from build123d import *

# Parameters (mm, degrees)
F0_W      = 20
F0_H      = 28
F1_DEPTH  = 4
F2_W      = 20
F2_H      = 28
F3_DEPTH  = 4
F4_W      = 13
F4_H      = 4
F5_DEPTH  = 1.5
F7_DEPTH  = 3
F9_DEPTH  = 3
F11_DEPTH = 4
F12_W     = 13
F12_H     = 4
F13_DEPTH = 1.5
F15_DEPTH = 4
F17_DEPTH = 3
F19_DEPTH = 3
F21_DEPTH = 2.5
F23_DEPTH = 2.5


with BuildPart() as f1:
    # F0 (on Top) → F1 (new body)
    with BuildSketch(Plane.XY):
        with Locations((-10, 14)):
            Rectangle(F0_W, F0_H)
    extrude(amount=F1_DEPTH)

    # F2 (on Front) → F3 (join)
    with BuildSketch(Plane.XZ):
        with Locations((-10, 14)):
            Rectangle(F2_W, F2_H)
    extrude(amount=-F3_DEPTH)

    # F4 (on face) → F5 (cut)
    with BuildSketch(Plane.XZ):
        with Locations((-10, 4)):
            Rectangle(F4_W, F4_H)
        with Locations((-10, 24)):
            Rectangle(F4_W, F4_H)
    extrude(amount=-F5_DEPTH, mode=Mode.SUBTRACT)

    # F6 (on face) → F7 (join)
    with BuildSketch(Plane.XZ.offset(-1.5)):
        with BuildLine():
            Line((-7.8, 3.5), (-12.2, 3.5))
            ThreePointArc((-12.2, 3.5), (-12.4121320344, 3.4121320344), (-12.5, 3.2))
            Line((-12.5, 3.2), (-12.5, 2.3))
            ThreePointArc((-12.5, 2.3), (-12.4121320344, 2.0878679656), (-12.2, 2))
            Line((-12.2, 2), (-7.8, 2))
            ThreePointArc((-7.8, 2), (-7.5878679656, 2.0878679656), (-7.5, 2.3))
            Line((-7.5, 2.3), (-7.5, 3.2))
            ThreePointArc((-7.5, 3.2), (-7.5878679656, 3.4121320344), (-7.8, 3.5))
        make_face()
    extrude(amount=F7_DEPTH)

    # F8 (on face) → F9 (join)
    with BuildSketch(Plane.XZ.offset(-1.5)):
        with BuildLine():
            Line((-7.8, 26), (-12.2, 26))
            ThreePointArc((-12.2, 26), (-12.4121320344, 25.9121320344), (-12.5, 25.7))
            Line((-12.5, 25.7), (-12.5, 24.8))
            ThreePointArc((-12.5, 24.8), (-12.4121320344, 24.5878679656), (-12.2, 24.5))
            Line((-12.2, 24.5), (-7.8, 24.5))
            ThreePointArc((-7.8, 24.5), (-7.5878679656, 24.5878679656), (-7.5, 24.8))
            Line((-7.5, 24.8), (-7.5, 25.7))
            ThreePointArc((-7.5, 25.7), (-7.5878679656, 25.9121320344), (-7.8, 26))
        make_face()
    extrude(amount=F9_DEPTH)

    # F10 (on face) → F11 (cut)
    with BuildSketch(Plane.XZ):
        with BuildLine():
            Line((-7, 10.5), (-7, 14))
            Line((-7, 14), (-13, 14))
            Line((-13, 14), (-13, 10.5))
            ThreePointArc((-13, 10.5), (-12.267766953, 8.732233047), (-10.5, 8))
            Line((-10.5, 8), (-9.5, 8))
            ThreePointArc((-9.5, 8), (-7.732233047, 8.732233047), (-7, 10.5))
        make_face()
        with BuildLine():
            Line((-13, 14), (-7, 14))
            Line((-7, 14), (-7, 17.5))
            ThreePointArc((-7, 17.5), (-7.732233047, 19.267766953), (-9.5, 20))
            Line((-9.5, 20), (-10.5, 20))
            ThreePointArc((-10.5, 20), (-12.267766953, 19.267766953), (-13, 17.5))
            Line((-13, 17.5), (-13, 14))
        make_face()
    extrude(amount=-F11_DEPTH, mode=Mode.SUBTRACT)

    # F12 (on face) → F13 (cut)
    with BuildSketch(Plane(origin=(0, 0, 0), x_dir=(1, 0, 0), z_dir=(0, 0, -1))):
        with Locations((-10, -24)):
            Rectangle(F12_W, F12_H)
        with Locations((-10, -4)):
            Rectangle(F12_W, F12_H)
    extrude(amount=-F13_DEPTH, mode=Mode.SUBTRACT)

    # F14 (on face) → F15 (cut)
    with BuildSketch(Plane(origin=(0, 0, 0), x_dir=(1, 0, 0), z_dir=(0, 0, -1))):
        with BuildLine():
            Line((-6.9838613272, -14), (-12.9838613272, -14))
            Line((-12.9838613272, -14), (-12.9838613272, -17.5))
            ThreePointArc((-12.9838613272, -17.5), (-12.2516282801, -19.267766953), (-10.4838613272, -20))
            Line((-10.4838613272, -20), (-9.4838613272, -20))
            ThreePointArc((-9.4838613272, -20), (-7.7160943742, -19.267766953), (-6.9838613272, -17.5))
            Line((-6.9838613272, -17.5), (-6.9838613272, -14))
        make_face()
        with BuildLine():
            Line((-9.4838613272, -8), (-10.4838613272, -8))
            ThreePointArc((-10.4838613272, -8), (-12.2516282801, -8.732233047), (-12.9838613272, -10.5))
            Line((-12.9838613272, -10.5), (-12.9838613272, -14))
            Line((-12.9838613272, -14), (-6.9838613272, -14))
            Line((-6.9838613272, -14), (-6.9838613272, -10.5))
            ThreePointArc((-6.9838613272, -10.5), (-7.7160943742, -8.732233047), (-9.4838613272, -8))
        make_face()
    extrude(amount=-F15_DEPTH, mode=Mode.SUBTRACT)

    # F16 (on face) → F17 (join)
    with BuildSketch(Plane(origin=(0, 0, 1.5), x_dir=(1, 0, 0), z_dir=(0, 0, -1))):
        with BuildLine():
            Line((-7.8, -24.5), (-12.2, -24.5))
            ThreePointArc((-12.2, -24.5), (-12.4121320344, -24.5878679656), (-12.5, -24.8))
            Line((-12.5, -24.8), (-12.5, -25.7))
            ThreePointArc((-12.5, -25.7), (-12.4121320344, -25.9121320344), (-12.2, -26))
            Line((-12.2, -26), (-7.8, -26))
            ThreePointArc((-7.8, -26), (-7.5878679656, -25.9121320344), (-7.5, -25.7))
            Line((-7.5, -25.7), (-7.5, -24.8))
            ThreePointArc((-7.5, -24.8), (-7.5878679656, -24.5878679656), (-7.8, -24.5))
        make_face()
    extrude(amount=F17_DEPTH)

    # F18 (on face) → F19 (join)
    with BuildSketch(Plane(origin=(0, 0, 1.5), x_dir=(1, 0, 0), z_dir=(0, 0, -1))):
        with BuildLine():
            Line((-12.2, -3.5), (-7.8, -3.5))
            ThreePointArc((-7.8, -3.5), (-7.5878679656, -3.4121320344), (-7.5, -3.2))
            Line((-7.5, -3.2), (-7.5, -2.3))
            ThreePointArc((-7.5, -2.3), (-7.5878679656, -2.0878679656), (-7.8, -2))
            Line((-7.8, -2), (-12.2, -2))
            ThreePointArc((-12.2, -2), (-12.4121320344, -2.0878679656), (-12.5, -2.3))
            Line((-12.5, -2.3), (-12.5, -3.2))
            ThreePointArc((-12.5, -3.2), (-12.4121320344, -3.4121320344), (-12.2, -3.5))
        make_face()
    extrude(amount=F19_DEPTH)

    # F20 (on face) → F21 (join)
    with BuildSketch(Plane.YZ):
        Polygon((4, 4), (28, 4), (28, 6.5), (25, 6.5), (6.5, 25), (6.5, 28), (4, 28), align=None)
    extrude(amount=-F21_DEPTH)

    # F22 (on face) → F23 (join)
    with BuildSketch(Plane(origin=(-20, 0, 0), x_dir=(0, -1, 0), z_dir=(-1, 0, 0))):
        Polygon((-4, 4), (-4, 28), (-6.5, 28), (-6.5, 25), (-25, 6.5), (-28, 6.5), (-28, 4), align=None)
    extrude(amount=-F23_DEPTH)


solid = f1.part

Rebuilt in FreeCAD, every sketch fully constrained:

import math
import FreeCAD as App
import Part
import Sketcher

V = App.Vector
Q = App.Units.Quantity


def add_polygon(sketch, points):
    """Adds a closed chain of lines whose ends are joined by coincident constraints."""
    first, n = sketch.GeometryCount, len(points)
    for a, b in zip(points, points[1:] + points[:1]):
        sketch.addGeometry(Part.LineSegment(App.Vector(*a, 0), App.Vector(*b, 0)), False)
    for i in range(n):
        sketch.addConstraint(Sketcher.Constraint("Coincident", first + i, 2, first + (i + 1) % n, 1))

doc = App.newDocument("Part")
body = doc.addObject("PartDesign::Body", "Body")

sketch1 = doc.addObject("Sketcher::SketchObject", "Sketch")
body.addObject(sketch1)
sketch1.AttachmentSupport = (doc.XY_Plane, [""])
sketch1.MapMode = "FlatFace"
add_polygon(sketch1, [(-20, 28), (-20, 0), (0, 0), (0, 28)])
sketch1.addConstraint([
    Sketcher.Constraint("Vertical", 0),
    Sketcher.Constraint("Horizontal", 1),
    Sketcher.Constraint("Vertical", 2),
    Sketcher.Constraint("Horizontal", 3),
    Sketcher.Constraint("Coincident", 1, 2, -1, 1),
    Sketcher.Constraint("DistanceX", 1, 1, 1, 2, Q("20 mm")),
    Sketcher.Constraint("DistanceY", 0, 2, 0, 1, Q("28 mm")),
])
pad1 = doc.addObject("PartDesign::Pad", "Pad")
body.addObject(pad1)
pad1.Profile = sketch1
pad1.Length = 4

sketch2 = doc.addObject("Sketcher::SketchObject", "Sketch001")
body.addObject(sketch2)
sketch2.AttachmentSupport = (doc.XZ_Plane, [""])
sketch2.MapMode = "FlatFace"
add_polygon(sketch2, [(-20, 28), (-20, 0), (0, 0), (0, 28)])
sketch2.addConstraint([
    Sketcher.Constraint("Vertical", 0),
    Sketcher.Constraint("Horizontal", 1),
    Sketcher.Constraint("Vertical", 2),
    Sketcher.Constraint("Horizontal", 3),
    Sketcher.Constraint("Coincident", 1, 2, -1, 1),
    Sketcher.Constraint("DistanceX", 1, 1, 1, 2, Q("20 mm")),
    Sketcher.Constraint("DistanceY", 0, 2, 0, 1, Q("28 mm")),
])
pad2 = doc.addObject("PartDesign::Pad", "Pad001")
body.addObject(pad2)
pad2.Profile = sketch2
pad2.Length = 4
pad2.Reversed = True

sketch3 = doc.addObject("Sketcher::SketchObject", "Sketch002")
body.addObject(sketch3)
sketch3.AttachmentSupport = (doc.XZ_Plane, [""])
sketch3.MapMode = "FlatFace"
add_polygon(sketch3, [(-16.5, 6), (-16.5, 2), (-3.5, 2), (-3.5, 6)])
add_polygon(sketch3, [(-16.5, 26), (-16.5, 22), (-3.5, 22), (-3.5, 26)])
sketch3.addConstraint([
    Sketcher.Constraint("Vertical", 0),
    Sketcher.Constraint("Horizontal", 1),
    Sketcher.Constraint("Vertical", 2),
    Sketcher.Constraint("Horizontal", 3),
    Sketcher.Constraint("Vertical", 4),
    Sketcher.Constraint("Horizontal", 5),
    Sketcher.Constraint("Vertical", 6),
    Sketcher.Constraint("Horizontal", 7),
    Sketcher.Constraint("Vertical", 3, 2, 4, 2),
    Sketcher.Constraint("Vertical", 2, 2, 5, 2),
    Sketcher.Constraint("Equal", 2, 4),
    Sketcher.Constraint("DistanceX", 1, 1, 1, 2, Q("13 mm")),
    Sketcher.Constraint("DistanceY", 0, 2, 0, 1, Q("4 mm")),
    Sketcher.Constraint("DistanceY", -1, 1, 0, 2, Q("2 mm")),
    Sketcher.Constraint("DistanceY", -1, 1, 4, 2, Q("22 mm")),
    Sketcher.Constraint("DistanceX", 0, 2, -1, 1, Q("16.5 mm")),
])
pocket1 = doc.addObject("PartDesign::Pocket", "Pocket")
body.addObject(pocket1)
pocket1.Profile = sketch3
pocket1.Length = 1.5

sketch4 = doc.addObject("Sketcher::SketchObject", "Sketch003")
body.addObject(sketch4)
sketch4.AttachmentSupport = (doc.XZ_Plane, [""])
sketch4.MapMode = "FlatFace"
sketch4.AttachmentOffset = App.Placement(V(0, 0, -1.5), App.Rotation())
sketch4.addGeometry([
    Part.LineSegment(V(-7.8, 3.5, 0), V(-12.2, 3.5, 0)),
    Part.ArcOfCircle(Part.Circle(V(-12.2, 3.2, 0), V(0, 0, 1), 0.3), math.radians(90), math.radians(180)),
    Part.LineSegment(V(-12.5, 3.2, 0), V(-12.5, 2.3, 0)),
    Part.ArcOfCircle(Part.Circle(V(-12.2, 2.3, 0), V(0, 0, 1), 0.3), math.radians(180), math.radians(270)),
    Part.LineSegment(V(-12.2, 2, 0), V(-7.8, 2, 0)),
    Part.ArcOfCircle(Part.Circle(V(-7.8, 2.3, 0), V(0, 0, 1), 0.3), math.radians(-90), math.radians(0)),
    Part.LineSegment(V(-7.5, 2.3, 0), V(-7.5, 3.2, 0)),
    Part.ArcOfCircle(Part.Circle(V(-7.8, 3.2, 0), V(0, 0, 1), 0.3), math.radians(0), math.radians(90)),
], False)
sketch4.addConstraint([
    Sketcher.Constraint("Tangent", 0, 2, 1, 1),
    Sketcher.Constraint("Tangent", 1, 2, 2, 1),
    Sketcher.Constraint("Tangent", 2, 2, 3, 1),
    Sketcher.Constraint("Tangent", 3, 2, 4, 1),
    Sketcher.Constraint("Tangent", 4, 2, 5, 1),
    Sketcher.Constraint("Tangent", 5, 2, 6, 1),
    Sketcher.Constraint("Tangent", 6, 2, 7, 1),
    Sketcher.Constraint("Tangent", 7, 2, 0, 1),
    Sketcher.Constraint("Horizontal", 0),
    Sketcher.Constraint("Vertical", 2),
    Sketcher.Constraint("Horizontal", 4),
    Sketcher.Constraint("Vertical", 6),
    Sketcher.Constraint("Equal", 1, 3),
    Sketcher.Constraint("Equal", 3, 5),
    Sketcher.Constraint("Equal", 5, 7),
    Sketcher.Constraint("Radius", 1, Q("0.3 mm")),
    Sketcher.Constraint("DistanceX", 0, 2, 0, 1, Q("4.4 mm")),
    Sketcher.Constraint("DistanceY", 2, 2, 2, 1, Q("0.9 mm")),
    Sketcher.Constraint("DistanceY", -1, 1, 3, 2, Q("2 mm")),
    Sketcher.Constraint("DistanceX", 1, 3, -1, 1, Q("12.2 mm")),
])
pad3 = doc.addObject("PartDesign::Pad", "Pad002")
body.addObject(pad3)
pad3.Profile = sketch4
pad3.Length = 3

sketch5 = doc.addObject("Sketcher::SketchObject", "Sketch004")
body.addObject(sketch5)
sketch5.AttachmentSupport = (doc.XZ_Plane, [""])
sketch5.MapMode = "FlatFace"
sketch5.AttachmentOffset = App.Placement(V(0, 0, -1.5), App.Rotation())
sketch5.addGeometry([
    Part.LineSegment(V(-7.8, 26, 0), V(-12.2, 26, 0)),
    Part.ArcOfCircle(Part.Circle(V(-12.2, 25.7, 0), V(0, 0, 1), 0.3), math.radians(90), math.radians(180)),
    Part.LineSegment(V(-12.5, 25.7, 0), V(-12.5, 24.8, 0)),
    Part.ArcOfCircle(Part.Circle(V(-12.2, 24.8, 0), V(0, 0, 1), 0.3), math.radians(180), math.radians(270)),
    Part.LineSegment(V(-12.2, 24.5, 0), V(-7.8, 24.5, 0)),
    Part.ArcOfCircle(Part.Circle(V(-7.8, 24.8, 0), V(0, 0, 1), 0.3), math.radians(-90), math.radians(0)),
    Part.LineSegment(V(-7.5, 24.8, 0), V(-7.5, 25.7, 0)),
    Part.ArcOfCircle(Part.Circle(V(-7.8, 25.7, 0), V(0, 0, 1), 0.3), math.radians(0), math.radians(90)),
], False)
sketch5.addConstraint([
    Sketcher.Constraint("Tangent", 0, 2, 1, 1),
    Sketcher.Constraint("Tangent", 1, 2, 2, 1),
    Sketcher.Constraint("Tangent", 2, 2, 3, 1),
    Sketcher.Constraint("Tangent", 3, 2, 4, 1),
    Sketcher.Constraint("Tangent", 4, 2, 5, 1),
    Sketcher.Constraint("Tangent", 5, 2, 6, 1),
    Sketcher.Constraint("Tangent", 6, 2, 7, 1),
    Sketcher.Constraint("Tangent", 7, 2, 0, 1),
    Sketcher.Constraint("Horizontal", 0),
    Sketcher.Constraint("Vertical", 2),
    Sketcher.Constraint("Horizontal", 4),
    Sketcher.Constraint("Vertical", 6),
    Sketcher.Constraint("Equal", 1, 3),
    Sketcher.Constraint("Equal", 3, 5),
    Sketcher.Constraint("Equal", 5, 7),
    Sketcher.Constraint("Radius", 1, Q("0.3 mm")),
    Sketcher.Constraint("DistanceX", 0, 2, 0, 1, Q("4.4 mm")),
    Sketcher.Constraint("DistanceY", 2, 2, 2, 1, Q("0.9 mm")),
    Sketcher.Constraint("DistanceY", -1, 1, 0, 2, Q("26 mm")),
    Sketcher.Constraint("DistanceX", 1, 3, -1, 1, Q("12.2 mm")),
])
pad4 = doc.addObject("PartDesign::Pad", "Pad003")
body.addObject(pad4)
pad4.Profile = sketch5
pad4.Length = 3

sketch6 = doc.addObject("Sketcher::SketchObject", "Sketch005")
body.addObject(sketch6)
sketch6.AttachmentSupport = (doc.XZ_Plane, [""])
sketch6.MapMode = "FlatFace"
sketch6.addGeometry([
    Part.LineSegment(V(-7, 10.5, 0), V(-7, 17.5, 0)),
    Part.ArcOfCircle(Part.Circle(V(-9.5, 17.5, 0), V(0, 0, 1), 2.5), math.radians(0), math.radians(90)),
    Part.LineSegment(V(-9.5, 20, 0), V(-10.5, 20, 0)),
    Part.ArcOfCircle(Part.Circle(V(-10.5, 17.5, 0), V(0, 0, 1), 2.5), math.radians(90), math.radians(180)),
    Part.LineSegment(V(-13, 17.5, 0), V(-13, 10.5, 0)),
    Part.ArcOfCircle(Part.Circle(V(-10.5, 10.5, 0), V(0, 0, 1), 2.5), math.radians(180), math.radians(270)),
    Part.LineSegment(V(-10.5, 8, 0), V(-9.5, 8, 0)),
    Part.ArcOfCircle(Part.Circle(V(-9.5, 10.5, 0), V(0, 0, 1), 2.5), math.radians(-90), math.radians(0)),
], False)
sketch6.addConstraint([
    Sketcher.Constraint("Tangent", 0, 2, 1, 1),
    Sketcher.Constraint("Tangent", 1, 2, 2, 1),
    Sketcher.Constraint("Tangent", 2, 2, 3, 1),
    Sketcher.Constraint("Tangent", 3, 2, 4, 1),
    Sketcher.Constraint("Tangent", 4, 2, 5, 1),
    Sketcher.Constraint("Tangent", 5, 2, 6, 1),
    Sketcher.Constraint("Tangent", 6, 2, 7, 1),
    Sketcher.Constraint("Tangent", 7, 2, 0, 1),
    Sketcher.Constraint("Vertical", 0),
    Sketcher.Constraint("Horizontal", 2),
    Sketcher.Constraint("Vertical", 4),
    Sketcher.Constraint("Horizontal", 6),
    Sketcher.Constraint("Equal", 1, 3),
    Sketcher.Constraint("Equal", 3, 5),
    Sketcher.Constraint("Equal", 5, 7),
    Sketcher.Constraint("Radius", 1, Q("2.5 mm")),
    Sketcher.Constraint("DistanceX", 2, 2, 2, 1, Q("1 mm")),
    Sketcher.Constraint("DistanceY", 0, 1, 0, 2, Q("7 mm")),
    Sketcher.Constraint("DistanceX", 0, 2, -1, 1, Q("7 mm")),
    Sketcher.Constraint("DistanceY", -1, 1, 1, 2, Q("20 mm")),
])
pocket2 = doc.addObject("PartDesign::Pocket", "Pocket001")
body.addObject(pocket2)
pocket2.Profile = sketch6
pocket2.Length = 4

sketch7 = doc.addObject("Sketcher::SketchObject", "Sketch006")
body.addObject(sketch7)
sketch7.AttachmentSupport = (doc.XY_Plane, [""])
sketch7.MapMode = "FlatFace"
add_polygon(sketch7, [(-16.5, 22), (-16.5, 26), (-3.5, 26), (-3.5, 22)])
add_polygon(sketch7, [(-16.5, 2), (-16.5, 6), (-3.5, 6), (-3.5, 2)])
sketch7.addConstraint([
    Sketcher.Constraint("Vertical", 0),
    Sketcher.Constraint("Horizontal", 1),
    Sketcher.Constraint("Vertical", 2),
    Sketcher.Constraint("Horizontal", 3),
    Sketcher.Constraint("Vertical", 4),
    Sketcher.Constraint("Horizontal", 5),
    Sketcher.Constraint("Vertical", 6),
    Sketcher.Constraint("Horizontal", 7),
    Sketcher.Constraint("Vertical", 3, 2, 4, 2),
    Sketcher.Constraint("Vertical", 2, 2, 5, 2),
    Sketcher.Constraint("Equal", 2, 4),
    Sketcher.Constraint("DistanceX", 1, 1, 1, 2, Q("13 mm")),
    Sketcher.Constraint("DistanceY", 0, 1, 0, 2, Q("4 mm")),
    Sketcher.Constraint("DistanceY", -1, 1, 0, 2, Q("26 mm")),
    Sketcher.Constraint("DistanceY", -1, 1, 4, 2, Q("6 mm")),
    Sketcher.Constraint("DistanceX", 0, 2, -1, 1, Q("16.5 mm")),
])
pocket3 = doc.addObject("PartDesign::Pocket", "Pocket002")
body.addObject(pocket3)
pocket3.Profile = sketch7
pocket3.Length = 1.5
pocket3.Reversed = True

sketch8 = doc.addObject("Sketcher::SketchObject", "Sketch007")
body.addObject(sketch8)
sketch8.AttachmentSupport = (doc.XY_Plane, [""])
sketch8.MapMode = "FlatFace"
sketch8.addGeometry([
    Part.ArcOfCircle(Part.Circle(V(-10.5, 17.5, 0), V(0, 0, 1), 2.5), math.radians(90), math.radians(180)),
    Part.LineSegment(V(-10.5, 20, 0), V(-9.5, 20, 0)),
    Part.ArcOfCircle(Part.Circle(V(-9.5, 17.5, 0), V(0, 0, 1), 2.5), math.radians(0), math.radians(90)),
    Part.LineSegment(V(-7, 17.5, 0), V(-7, 10.5, 0)),
    Part.ArcOfCircle(Part.Circle(V(-9.5, 10.5, 0), V(0, 0, 1), 2.5), math.radians(-90), math.radians(0)),
    Part.LineSegment(V(-9.5, 8, 0), V(-10.5, 8, 0)),
    Part.ArcOfCircle(Part.Circle(V(-10.5, 10.5, 0), V(0, 0, 1), 2.5), math.radians(180), math.radians(270)),
    Part.LineSegment(V(-13, 10.5, 0), V(-13, 17.5, 0)),
], False)
sketch8.addConstraint([
    Sketcher.Constraint("Tangent", 0, 1, 1, 1),
    Sketcher.Constraint("Tangent", 1, 2, 2, 2),
    Sketcher.Constraint("Tangent", 2, 1, 3, 1),
    Sketcher.Constraint("Tangent", 3, 2, 4, 2),
    Sketcher.Constraint("Tangent", 4, 1, 5, 1),
    Sketcher.Constraint("Tangent", 5, 2, 6, 2),
    Sketcher.Constraint("Tangent", 6, 1, 7, 1),
    Sketcher.Constraint("Tangent", 7, 2, 0, 2),
    Sketcher.Constraint("Horizontal", 1),
    Sketcher.Constraint("Vertical", 3),
    Sketcher.Constraint("Horizontal", 5),
    Sketcher.Constraint("Vertical", 7),
    Sketcher.Constraint("Equal", 0, 2),
    Sketcher.Constraint("Equal", 2, 4),
    Sketcher.Constraint("Equal", 4, 6),
    Sketcher.Constraint("Radius", 0, Q("2.5 mm")),
    Sketcher.Constraint("DistanceX", 1, 1, 1, 2, Q("1 mm")),
    Sketcher.Constraint("DistanceY", 3, 2, 3, 1, Q("7 mm")),
    Sketcher.Constraint("DistanceY", -1, 1, 0, 1, Q("20 mm")),
    Sketcher.Constraint("DistanceX", 0, 3, -1, 1, Q("10.483861 mm")),
])
pocket4 = doc.addObject("PartDesign::Pocket", "Pocket003")
body.addObject(pocket4)
pocket4.Profile = sketch8
pocket4.Length = 4
pocket4.Reversed = True

sketch9 = doc.addObject("Sketcher::SketchObject", "Sketch008")
body.addObject(sketch9)
sketch9.AttachmentSupport = (doc.XY_Plane, [""])
sketch9.MapMode = "FlatFace"
sketch9.AttachmentOffset = App.Placement(V(0, 0, 1.5), App.Rotation())
sketch9.addGeometry([
    Part.LineSegment(V(-7.8, 24.5, 0), V(-12.2, 24.5, 0)),
    Part.ArcOfCircle(Part.Circle(V(-12.2, 24.8, 0), V(0, 0, 1), 0.3), math.radians(180), math.radians(270)),
    Part.LineSegment(V(-12.5, 24.8, 0), V(-12.5, 25.7, 0)),
    Part.ArcOfCircle(Part.Circle(V(-12.2, 25.7, 0), V(0, 0, 1), 0.3), math.radians(90), math.radians(180)),
    Part.LineSegment(V(-12.2, 26, 0), V(-7.8, 26, 0)),
    Part.ArcOfCircle(Part.Circle(V(-7.8, 25.7, 0), V(0, 0, 1), 0.3), math.radians(0), math.radians(90)),
    Part.LineSegment(V(-7.5, 25.7, 0), V(-7.5, 24.8, 0)),
    Part.ArcOfCircle(Part.Circle(V(-7.8, 24.8, 0), V(0, 0, 1), 0.3), math.radians(-90), math.radians(0)),
], False)
sketch9.addConstraint([
    Sketcher.Constraint("Tangent", 0, 2, 1, 2),
    Sketcher.Constraint("Tangent", 1, 1, 2, 1),
    Sketcher.Constraint("Tangent", 2, 2, 3, 2),
    Sketcher.Constraint("Tangent", 3, 1, 4, 1),
    Sketcher.Constraint("Tangent", 4, 2, 5, 2),
    Sketcher.Constraint("Tangent", 5, 1, 6, 1),
    Sketcher.Constraint("Tangent", 6, 2, 7, 2),
    Sketcher.Constraint("Tangent", 7, 1, 0, 1),
    Sketcher.Constraint("Horizontal", 0),
    Sketcher.Constraint("Vertical", 2),
    Sketcher.Constraint("Horizontal", 4),
    Sketcher.Constraint("Vertical", 6),
    Sketcher.Constraint("Equal", 1, 3),
    Sketcher.Constraint("Equal", 3, 5),
    Sketcher.Constraint("Equal", 5, 7),
    Sketcher.Constraint("Radius", 1, Q("0.3 mm")),
    Sketcher.Constraint("DistanceX", 0, 2, 0, 1, Q("4.4 mm")),
    Sketcher.Constraint("DistanceY", 2, 1, 2, 2, Q("0.9 mm")),
    Sketcher.Constraint("DistanceY", -1, 1, 3, 1, Q("26 mm")),
    Sketcher.Constraint("DistanceX", 1, 3, -1, 1, Q("12.2 mm")),
])
pad5 = doc.addObject("PartDesign::Pad", "Pad004")
body.addObject(pad5)
pad5.Profile = sketch9
pad5.Length = 3
pad5.Reversed = True

sketch10 = doc.addObject("Sketcher::SketchObject", "Sketch009")
body.addObject(sketch10)
sketch10.AttachmentSupport = (doc.XY_Plane, [""])
sketch10.MapMode = "FlatFace"
sketch10.AttachmentOffset = App.Placement(V(0, 0, 1.5), App.Rotation())
sketch10.addGeometry([
    Part.LineSegment(V(-12.2, 3.5, 0), V(-7.8, 3.5, 0)),
    Part.ArcOfCircle(Part.Circle(V(-7.8, 3.2, 0), V(0, 0, 1), 0.3), math.radians(0), math.radians(90)),
    Part.LineSegment(V(-7.5, 3.2, 0), V(-7.5, 2.3, 0)),
    Part.ArcOfCircle(Part.Circle(V(-7.8, 2.3, 0), V(0, 0, 1), 0.3), math.radians(-90), math.radians(0)),
    Part.LineSegment(V(-7.8, 2, 0), V(-12.2, 2, 0)),
    Part.ArcOfCircle(Part.Circle(V(-12.2, 2.3, 0), V(0, 0, 1), 0.3), math.radians(180), math.radians(270)),
    Part.LineSegment(V(-12.5, 2.3, 0), V(-12.5, 3.2, 0)),
    Part.ArcOfCircle(Part.Circle(V(-12.2, 3.2, 0), V(0, 0, 1), 0.3), math.radians(90), math.radians(180)),
], False)
sketch10.addConstraint([
    Sketcher.Constraint("Tangent", 0, 2, 1, 2),
    Sketcher.Constraint("Tangent", 1, 1, 2, 1),
    Sketcher.Constraint("Tangent", 2, 2, 3, 2),
    Sketcher.Constraint("Tangent", 3, 1, 4, 1),
    Sketcher.Constraint("Tangent", 4, 2, 5, 2),
    Sketcher.Constraint("Tangent", 5, 1, 6, 1),
    Sketcher.Constraint("Tangent", 6, 2, 7, 2),
    Sketcher.Constraint("Tangent", 7, 1, 0, 1),
    Sketcher.Constraint("Horizontal", 0),
    Sketcher.Constraint("Vertical", 2),
    Sketcher.Constraint("Horizontal", 4),
    Sketcher.Constraint("Vertical", 6),
    Sketcher.Constraint("Equal", 1, 3),
    Sketcher.Constraint("Equal", 3, 5),
    Sketcher.Constraint("Equal", 5, 7),
    Sketcher.Constraint("Radius", 1, Q("0.3 mm")),
    Sketcher.Constraint("DistanceX", 0, 1, 0, 2, Q("4.4 mm")),
    Sketcher.Constraint("DistanceY", 2, 2, 2, 1, Q("0.9 mm")),
    Sketcher.Constraint("DistanceY", -1, 1, 3, 1, Q("2 mm")),
    Sketcher.Constraint("DistanceX", 1, 3, -1, 1, Q("7.8 mm")),
])
pad6 = doc.addObject("PartDesign::Pad", "Pad005")
body.addObject(pad6)
pad6.Profile = sketch10
pad6.Length = 3
pad6.Reversed = True

sketch11 = doc.addObject("Sketcher::SketchObject", "Sketch010")
body.addObject(sketch11)
sketch11.AttachmentSupport = (doc.YZ_Plane, [""])
sketch11.MapMode = "FlatFace"
add_polygon(sketch11, [(4, 4), (28, 4), (28, 6.5), (25, 6.5), (6.5, 25), (6.5, 28), (4, 28)])
sketch11.addConstraint([
    Sketcher.Constraint("Horizontal", 0),
    Sketcher.Constraint("Vertical", 1),
    Sketcher.Constraint("Horizontal", 2),
    Sketcher.Constraint("Vertical", 4),
    Sketcher.Constraint("Horizontal", 5),
    Sketcher.Constraint("Vertical", 6),
    Sketcher.Constraint("Equal", 5, 1),
    Sketcher.Constraint("Equal", 2, 4),
    Sketcher.Constraint("Equal", 0, 6),
    Sketcher.Constraint("DistanceX", 0, 1, 0, 2, Q("24 mm")),
    Sketcher.Constraint("DistanceX", 2, 2, 2, 1, Q("3 mm")),
    Sketcher.Constraint("DistanceX", 5, 2, 5, 1, Q("2.5 mm")),
    Sketcher.Constraint("DistanceX", -1, 1, 0, 2, Q("28 mm")),
    Sketcher.Constraint("DistanceY", -1, 1, 0, 2, Q("4 mm")),
])
pad7 = doc.addObject("PartDesign::Pad", "Pad006")
body.addObject(pad7)
pad7.Profile = sketch11
pad7.Length = 2.5
pad7.Reversed = True

sketch12 = doc.addObject("Sketcher::SketchObject", "Sketch011")
body.addObject(sketch12)
sketch12.AttachmentSupport = (doc.YZ_Plane, [""])
sketch12.MapMode = "FlatFace"
sketch12.AttachmentOffset = App.Placement(V(0, 0, -20), App.Rotation())
add_polygon(sketch12, [(4, 4), (4, 28), (6.5, 28), (6.5, 25), (25, 6.5), (28, 6.5), (28, 4)])
sketch12.addConstraint([
    Sketcher.Constraint("Vertical", 0),
    Sketcher.Constraint("Horizontal", 1),
    Sketcher.Constraint("Vertical", 2),
    Sketcher.Constraint("Horizontal", 4),
    Sketcher.Constraint("Vertical", 5),
    Sketcher.Constraint("Horizontal", 6),
    Sketcher.Constraint("Equal", 6, 0),
    Sketcher.Constraint("Equal", 4, 2),
    Sketcher.Constraint("Equal", 1, 5),
    Sketcher.Constraint("DistanceX", 4, 1, 4, 2, Q("3 mm")),
    Sketcher.Constraint("DistanceX", 6, 2, 6, 1, Q("24 mm")),
    Sketcher.Constraint("DistanceX", 1, 1, 1, 2, Q("2.5 mm")),
    Sketcher.Constraint("DistanceX", -1, 1, 0, 2, Q("4 mm")),
    Sketcher.Constraint("DistanceY", -1, 1, 0, 2, Q("28 mm")),
])
pad8 = doc.addObject("PartDesign::Pad", "Pad007")
body.addObject(pad8)
pad8.Profile = sketch12
pad8.Length = 2.5

doc.recompute()
